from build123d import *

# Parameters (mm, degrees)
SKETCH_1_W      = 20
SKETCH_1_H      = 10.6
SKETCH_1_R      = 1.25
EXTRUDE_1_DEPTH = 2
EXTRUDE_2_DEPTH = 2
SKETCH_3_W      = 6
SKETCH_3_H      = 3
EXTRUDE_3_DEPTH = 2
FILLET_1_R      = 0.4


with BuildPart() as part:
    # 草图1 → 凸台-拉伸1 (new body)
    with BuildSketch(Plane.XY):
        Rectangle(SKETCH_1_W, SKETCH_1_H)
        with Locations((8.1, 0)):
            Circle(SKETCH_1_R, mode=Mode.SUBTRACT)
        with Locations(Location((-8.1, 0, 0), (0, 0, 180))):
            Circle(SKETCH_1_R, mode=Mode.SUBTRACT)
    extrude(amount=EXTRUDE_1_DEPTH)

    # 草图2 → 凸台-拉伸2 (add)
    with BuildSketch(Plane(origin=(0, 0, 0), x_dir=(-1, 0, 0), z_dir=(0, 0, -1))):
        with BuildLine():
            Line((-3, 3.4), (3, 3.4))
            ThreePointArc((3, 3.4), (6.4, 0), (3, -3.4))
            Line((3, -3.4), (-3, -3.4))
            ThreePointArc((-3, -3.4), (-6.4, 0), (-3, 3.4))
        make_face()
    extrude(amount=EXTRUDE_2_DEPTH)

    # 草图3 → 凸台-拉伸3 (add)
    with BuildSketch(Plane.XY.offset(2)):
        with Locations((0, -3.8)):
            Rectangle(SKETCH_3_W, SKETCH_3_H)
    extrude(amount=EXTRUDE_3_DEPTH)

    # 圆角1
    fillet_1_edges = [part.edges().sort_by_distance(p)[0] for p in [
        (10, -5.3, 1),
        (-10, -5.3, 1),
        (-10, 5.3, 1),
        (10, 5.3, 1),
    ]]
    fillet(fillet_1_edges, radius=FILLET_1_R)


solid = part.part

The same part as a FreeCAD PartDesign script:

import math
import FreeCAD as App
import Part
import Sketcher

V = App.Vector


def edges_at(feature, points):
    """Names of the edges that pass closest to the given points."""
    edges = feature.Shape.Edges
    near = lambda p: min(range(len(edges)), key=lambda i: edges[i].distToShape(Part.Vertex(*p))[0])
    return sorted({f"Edge{near(p) + 1}" for p in points})


def add_polygon(sketch, points):
    """Adds a closed chain of lines whose ends are joined by coincident constraints."""
    first, n = sketch.GeometryCount, len(points)
    for a, b in zip(points, points[1:] + points[:1]):
        sketch.addGeometry(Part.LineSegment(App.Vector(*a, 0), App.Vector(*b, 0)), False)
    for i in range(n):
        sketch.addConstraint(Sketcher.Constraint("Coincident", first + i, 2, first + (i + 1) % n, 1))

doc = App.newDocument("Part")
body = doc.addObject("PartDesign::Body", "Body")

# Sketch on XY plane
sketch1 = doc.addObject("Sketcher::SketchObject", "Sketch")
body.addObject(sketch1)
sketch1.AttachmentSupport = (doc.XY_Plane, [""])
sketch1.MapMode = "FlatFace"
add_polygon(sketch1, [(-10, 5.3), (-10, -5.3), (10, -5.3), (10, 5.3)])  # lines 0-3
sketch1.addGeometry(Part.Circle(V(-8.1, 0, 0), V(0, 0, 1), 1.2), False)  # 4
sketch1.addGeometry(Part.Circle(V(8.1, 0, 0), V(0, 0, 1), 1.2), False)  # 5
sketch1.addConstraint([
    Sketcher.Constraint("Vertical", 0),
    Sketcher.Constraint("Horizontal", 1),
    Sketcher.Constraint("Vertical", 2),
    Sketcher.Constraint("Horizontal", 3),
    Sketcher.Constraint("Equal", 4, 5),
    Sketcher.Constraint("Symmetric", 4, 3, 5, 3, -1, 1),
    Sketcher.Constraint("Symmetric", 0, 2, 2, 2, -1, 1),
    Sketcher.Constraint("PointOnObject", 4, 3, -1),
    Sketcher.Constraint("Diameter", 4, 2.5),
    Sketcher.Constraint("DistanceX", 1, 1, 1, 2, 20.0),
    Sketcher.Constraint("DistanceY", 0, 2, 0, 1, 10.6),
    Sketcher.Constraint("DistanceX", 4, 3, -1, 1, 8.1),
])
pad1 = doc.addObject("PartDesign::Pad", "Pad")
body.addObject(pad1)
pad1.Profile = sketch1
pad1.Length = 2

# Sketch on XY plane
sketch2 = doc.addObject("Sketcher::SketchObject", "Sketch001")
body.addObject(sketch2)
sketch2.AttachmentSupport = (doc.XY_Plane, [""])
sketch2.MapMode = "FlatFace"
sketch2.addGeometry([
    Part.LineSegment(V(-3, 3.4, 0), V(3, 3.4, 0)),
    Part.ArcOfCircle(Part.Circle(V(3, 0, 0), V(0, 0, 1), 3.4), math.radians(-90), math.radians(90)),
    Part.LineSegment(V(3, -3.4, 0), V(-3, -3.4, 0)),
    Part.ArcOfCircle(Part.Circle(V(-3, 0, 0), V(0, 0, 1), 3.4), math.radians(90), math.radians(270)),
], False)
sketch2.addConstraint([
    Sketcher.Constraint("Tangent", 0, 2, 1, 2),
    Sketcher.Constraint("Tangent", 1, 1, 2, 1),
    Sketcher.Constraint("Tangent", 2, 2, 3, 2),
    Sketcher.Constraint("Tangent", 3, 1, 0, 1),
    Sketcher.Constraint("Horizontal", 0),
    Sketcher.Constraint("Horizontal", 2),
    Sketcher.Constraint("Symmetric", 1, 3, 3, 3, -1, 1),
    Sketcher.Constraint("Radius", 1, 3.4),
    Sketcher.Constraint("DistanceX", 0, 1, 0, 2, 6.0),
])
pad2 = doc.addObject("PartDesign::Pad", "Pad001")
body.addObject(pad2)
pad2.Profile = sketch2
pad2.Length = 2
pad2.Reversed = True

# Sketch on XY plane
sketch3 = doc.addObject("Sketcher::SketchObject", "Sketch002")
body.addObject(sketch3)
sketch3.AttachmentSupport = (doc.XY_Plane, [""])
sketch3.MapMode = "FlatFace"
sketch3.AttachmentOffset = App.Placement(V(0, 0, 2), App.Rotation())
add_polygon(sketch3, [(-3, -2.3), (-3, -5.3), (3, -5.3), (3, -2.3)])  # lines 0-3
sketch3.addConstraint([
    Sketcher.Constraint("Vertical", 0),
    Sketcher.Constraint("Horizontal", 1),
    Sketcher.Constraint("Vertical", 2),
    Sketcher.Constraint("Horizontal", 3),
    Sketcher.Constraint("DistanceX", 1, 1, 1, 2, 6.0),
    Sketcher.Constraint("DistanceY", 0, 2, 0, 1, 3.0),
    Sketcher.Constraint("DistanceX", 0, 2, -1, 1, 3.0),
    Sketcher.Constraint("DistanceY", 0, 2, -1, 1, 5.3),
])
pad3 = doc.addObject("PartDesign::Pad", "Pad002")
body.addObject(pad3)
pad3.Profile = sketch3
pad3.Length = 2
doc.recompute()

fillet = doc.addObject("PartDesign::Fillet", "Fillet")
body.addObject(fillet)
fillet.Base = (pad3, edges_at(pad3, [
    (10, -5.3, 1),
    (-10, -5.3, 1),
    (-10, 5.3, 1),
    (10, 5.3, 1),
]))
fillet.Radius = 0.4

doc.recompute()
